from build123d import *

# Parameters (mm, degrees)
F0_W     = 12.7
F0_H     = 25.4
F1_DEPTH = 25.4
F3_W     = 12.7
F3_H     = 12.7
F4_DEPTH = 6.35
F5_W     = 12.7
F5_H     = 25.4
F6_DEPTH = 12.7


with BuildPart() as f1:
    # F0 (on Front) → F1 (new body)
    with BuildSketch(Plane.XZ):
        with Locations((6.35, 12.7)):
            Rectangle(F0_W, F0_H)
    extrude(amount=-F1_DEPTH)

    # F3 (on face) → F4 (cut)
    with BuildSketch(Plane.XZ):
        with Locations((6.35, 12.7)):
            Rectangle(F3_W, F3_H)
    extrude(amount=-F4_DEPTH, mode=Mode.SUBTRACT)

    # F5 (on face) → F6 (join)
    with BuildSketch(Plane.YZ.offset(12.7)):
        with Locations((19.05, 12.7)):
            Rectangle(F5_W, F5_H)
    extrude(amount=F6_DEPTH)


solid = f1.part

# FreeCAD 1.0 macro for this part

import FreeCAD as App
import Part
import Sketcher

V = App.Vector
Q = App.Units.Quantity

doc = App.newDocument("Part")
params = doc.addObject("Spreadsheet::Sheet", "Params")
for row, (alias, value) in enumerate([
    ("sketch1_height", "1 in"),
    ("sketch1_width", "0.5 in"),
    ("pad1_length", "1 in"),
    ("sketch2_width", "0.5 in"),
    ("pocket1_length", "0.25 in"),
    ("sketch3_height", "1 in"),
    ("sketch3_width", "0.5 in"),
    ("pad2_length", "0.5 in"),
], start=1):
    params.set(f"A{row}", alias)
    params.set(f"B{row}", "=" + value)
    params.setAlias(f"B{row}", alias)

body = doc.addObject("PartDesign::Body", "Body")

sketch1 = body.newObject("Sketcher::SketchObject", "Sketch")
sketch1.AttachmentSupport = (doc.getObject("XZ_Plane"), [""])
sketch1.MapMode = "FlatFace"
sketch1.addGeometry([
    Part.LineSegment(V(0, 25.4, 0), V(0, 0, 0)),
    Part.LineSegment(V(0, 0, 0), V(12.7, 0, 0)),
    Part.LineSegment(V(12.7, 0, 0), V(12.7, 25.4, 0)),
    Part.LineSegment(V(12.7, 25.4, 0), V(0, 25.4, 0)),
], False)
sketch1.addConstraint([
    Sketcher.Constraint("Coincident", 0, 2, 1, 1),
    Sketcher.Constraint("Coincident", 1, 2, 2, 1),
    Sketcher.Constraint("Coincident", 2, 2, 3, 1),
    Sketcher.Constraint("Coincident", 3, 2, 0, 1),
    Sketcher.Constraint("Vertical", 0),
    Sketcher.Constraint("Horizontal", 1),
    Sketcher.Constraint("Vertical", 2),
    Sketcher.Constraint("Horizontal", 3),
    Sketcher.Constraint("Coincident", 0, 2, -1, 1),
    Sketcher.Constraint("DistanceY", 0, 2, 0, 1, Q("1 in")),
    Sketcher.Constraint("DistanceX", 1, 1, 1, 2, Q("0.5 in")),
])
sketch1.setExpression("Constraints[9]", "Params.sketch1_height")
sketch1.setExpression("Constraints[10]", "Params.sketch1_width")
pad1 = body.newObject("PartDesign::Pad", "Pad")
pad1.Profile = sketch1
pad1.setExpression("Length", "Params.pad1_length")
pad1.Reversed = True

sketch2 = body.newObject("Sketcher::SketchObject", "Sketch001")
sketch2.AttachmentSupport = (doc.getObject("XZ_Plane"), [""])
sketch2.MapMode = "FlatFace"
sketch2.addGeometry([
    Part.LineSegment(V(0, 19.05, 0), V(0, 6.35, 0)),
    Part.LineSegment(V(0, 6.35, 0), V(12.7, 6.35, 0)),
    Part.LineSegment(V(12.7, 6.35, 0), V(12.7, 19.05, 0)),
    Part.LineSegment(V(12.7, 19.05, 0), V(0, 19.05, 0)),
], False)
sketch2.addConstraint([
    Sketcher.Constraint("Coincident", 0, 2, 1, 1),
    Sketcher.Constraint("Coincident", 1, 2, 2, 1),
    Sketcher.Constraint("Coincident", 2, 2, 3, 1),
    Sketcher.Constraint("Coincident", 3, 2, 0, 1),
    Sketcher.Constraint("Vertical", 0),
    Sketcher.Constraint("Horizontal", 1),
    Sketcher.Constraint("Vertical", 2),
    Sketcher.Constraint("Horizontal", 3),
    Sketcher.Constraint("PointOnObject", 0, 2, -2),
    Sketcher.Constraint("Equal", 3, 0),
    Sketcher.Constraint("DistanceX", 1, 1, 1, 2, Q("0.5 in")),
    Sketcher.Constraint("DistanceY", -1, 1, 0, 2, Q("0.25 in")),
])
sketch2.setExpression("Constraints[10]", "Params.sketch2_width")
pocket1 = body.newObject("PartDesign::Pocket", "Pocket")
pocket1.Profile = sketch2
pocket1.setExpression("Length", "Params.pocket1_length")

sketch3 = body.newObject("Sketcher::SketchObject", "Sketch002")
sketch3.AttachmentSupport = (doc.getObject("YZ_Plane"), [""])
sketch3.MapMode = "FlatFace"
sketch3.AttachmentOffset = App.Placement(V(0, 0, 0.5 * 25.4), App.Rotation())
sketch3.addGeometry([
    Part.LineSegment(V(12.7, 25.4, 0), V(12.7, 0, 0)),
    Part.LineSegment(V(12.7, 0, 0), V(25.4, 0, 0)),
    Part.LineSegment(V(25.4, 0, 0), V(25.4, 25.4, 0)),
    Part.LineSegment(V(25.4, 25.4, 0), V(12.7, 25.4, 0)),
], False)
sketch3.addConstraint([
    Sketcher.Constraint("Coincident", 0, 2, 1, 1),
    Sketcher.Constraint("Coincident", 1, 2, 2, 1),
    Sketcher.Constraint("Coincident", 2, 2, 3, 1),
    Sketcher.Constraint("Coincident", 3, 2, 0, 1),
    Sketcher.Constraint("Vertical", 0),
    Sketcher.Constraint("Horizontal", 1),
    Sketcher.Constraint("Vertical", 2),
    Sketcher.Constraint("Horizontal", 3),
    Sketcher.Constraint("PointOnObject", 0, 2, -1),
    Sketcher.Constraint("DistanceY", 0, 2, 0, 1, Q("1 in")),
    Sketcher.Constraint("DistanceX", 1, 1, 1, 2, Q("0.5 in")),
    Sketcher.Constraint("DistanceX", -1, 1, 1, 2, Q("1 in")),
])
sketch3.setExpression("Constraints[9]", "Params.sketch3_height")
sketch3.setExpression("Constraints[10]", "Params.sketch3_width")
pad2 = body.newObject("PartDesign::Pad", "Pad001")
pad2.Profile = sketch3
pad2.setExpression("Length", "Params.pad2_length")

doc.recompute()
